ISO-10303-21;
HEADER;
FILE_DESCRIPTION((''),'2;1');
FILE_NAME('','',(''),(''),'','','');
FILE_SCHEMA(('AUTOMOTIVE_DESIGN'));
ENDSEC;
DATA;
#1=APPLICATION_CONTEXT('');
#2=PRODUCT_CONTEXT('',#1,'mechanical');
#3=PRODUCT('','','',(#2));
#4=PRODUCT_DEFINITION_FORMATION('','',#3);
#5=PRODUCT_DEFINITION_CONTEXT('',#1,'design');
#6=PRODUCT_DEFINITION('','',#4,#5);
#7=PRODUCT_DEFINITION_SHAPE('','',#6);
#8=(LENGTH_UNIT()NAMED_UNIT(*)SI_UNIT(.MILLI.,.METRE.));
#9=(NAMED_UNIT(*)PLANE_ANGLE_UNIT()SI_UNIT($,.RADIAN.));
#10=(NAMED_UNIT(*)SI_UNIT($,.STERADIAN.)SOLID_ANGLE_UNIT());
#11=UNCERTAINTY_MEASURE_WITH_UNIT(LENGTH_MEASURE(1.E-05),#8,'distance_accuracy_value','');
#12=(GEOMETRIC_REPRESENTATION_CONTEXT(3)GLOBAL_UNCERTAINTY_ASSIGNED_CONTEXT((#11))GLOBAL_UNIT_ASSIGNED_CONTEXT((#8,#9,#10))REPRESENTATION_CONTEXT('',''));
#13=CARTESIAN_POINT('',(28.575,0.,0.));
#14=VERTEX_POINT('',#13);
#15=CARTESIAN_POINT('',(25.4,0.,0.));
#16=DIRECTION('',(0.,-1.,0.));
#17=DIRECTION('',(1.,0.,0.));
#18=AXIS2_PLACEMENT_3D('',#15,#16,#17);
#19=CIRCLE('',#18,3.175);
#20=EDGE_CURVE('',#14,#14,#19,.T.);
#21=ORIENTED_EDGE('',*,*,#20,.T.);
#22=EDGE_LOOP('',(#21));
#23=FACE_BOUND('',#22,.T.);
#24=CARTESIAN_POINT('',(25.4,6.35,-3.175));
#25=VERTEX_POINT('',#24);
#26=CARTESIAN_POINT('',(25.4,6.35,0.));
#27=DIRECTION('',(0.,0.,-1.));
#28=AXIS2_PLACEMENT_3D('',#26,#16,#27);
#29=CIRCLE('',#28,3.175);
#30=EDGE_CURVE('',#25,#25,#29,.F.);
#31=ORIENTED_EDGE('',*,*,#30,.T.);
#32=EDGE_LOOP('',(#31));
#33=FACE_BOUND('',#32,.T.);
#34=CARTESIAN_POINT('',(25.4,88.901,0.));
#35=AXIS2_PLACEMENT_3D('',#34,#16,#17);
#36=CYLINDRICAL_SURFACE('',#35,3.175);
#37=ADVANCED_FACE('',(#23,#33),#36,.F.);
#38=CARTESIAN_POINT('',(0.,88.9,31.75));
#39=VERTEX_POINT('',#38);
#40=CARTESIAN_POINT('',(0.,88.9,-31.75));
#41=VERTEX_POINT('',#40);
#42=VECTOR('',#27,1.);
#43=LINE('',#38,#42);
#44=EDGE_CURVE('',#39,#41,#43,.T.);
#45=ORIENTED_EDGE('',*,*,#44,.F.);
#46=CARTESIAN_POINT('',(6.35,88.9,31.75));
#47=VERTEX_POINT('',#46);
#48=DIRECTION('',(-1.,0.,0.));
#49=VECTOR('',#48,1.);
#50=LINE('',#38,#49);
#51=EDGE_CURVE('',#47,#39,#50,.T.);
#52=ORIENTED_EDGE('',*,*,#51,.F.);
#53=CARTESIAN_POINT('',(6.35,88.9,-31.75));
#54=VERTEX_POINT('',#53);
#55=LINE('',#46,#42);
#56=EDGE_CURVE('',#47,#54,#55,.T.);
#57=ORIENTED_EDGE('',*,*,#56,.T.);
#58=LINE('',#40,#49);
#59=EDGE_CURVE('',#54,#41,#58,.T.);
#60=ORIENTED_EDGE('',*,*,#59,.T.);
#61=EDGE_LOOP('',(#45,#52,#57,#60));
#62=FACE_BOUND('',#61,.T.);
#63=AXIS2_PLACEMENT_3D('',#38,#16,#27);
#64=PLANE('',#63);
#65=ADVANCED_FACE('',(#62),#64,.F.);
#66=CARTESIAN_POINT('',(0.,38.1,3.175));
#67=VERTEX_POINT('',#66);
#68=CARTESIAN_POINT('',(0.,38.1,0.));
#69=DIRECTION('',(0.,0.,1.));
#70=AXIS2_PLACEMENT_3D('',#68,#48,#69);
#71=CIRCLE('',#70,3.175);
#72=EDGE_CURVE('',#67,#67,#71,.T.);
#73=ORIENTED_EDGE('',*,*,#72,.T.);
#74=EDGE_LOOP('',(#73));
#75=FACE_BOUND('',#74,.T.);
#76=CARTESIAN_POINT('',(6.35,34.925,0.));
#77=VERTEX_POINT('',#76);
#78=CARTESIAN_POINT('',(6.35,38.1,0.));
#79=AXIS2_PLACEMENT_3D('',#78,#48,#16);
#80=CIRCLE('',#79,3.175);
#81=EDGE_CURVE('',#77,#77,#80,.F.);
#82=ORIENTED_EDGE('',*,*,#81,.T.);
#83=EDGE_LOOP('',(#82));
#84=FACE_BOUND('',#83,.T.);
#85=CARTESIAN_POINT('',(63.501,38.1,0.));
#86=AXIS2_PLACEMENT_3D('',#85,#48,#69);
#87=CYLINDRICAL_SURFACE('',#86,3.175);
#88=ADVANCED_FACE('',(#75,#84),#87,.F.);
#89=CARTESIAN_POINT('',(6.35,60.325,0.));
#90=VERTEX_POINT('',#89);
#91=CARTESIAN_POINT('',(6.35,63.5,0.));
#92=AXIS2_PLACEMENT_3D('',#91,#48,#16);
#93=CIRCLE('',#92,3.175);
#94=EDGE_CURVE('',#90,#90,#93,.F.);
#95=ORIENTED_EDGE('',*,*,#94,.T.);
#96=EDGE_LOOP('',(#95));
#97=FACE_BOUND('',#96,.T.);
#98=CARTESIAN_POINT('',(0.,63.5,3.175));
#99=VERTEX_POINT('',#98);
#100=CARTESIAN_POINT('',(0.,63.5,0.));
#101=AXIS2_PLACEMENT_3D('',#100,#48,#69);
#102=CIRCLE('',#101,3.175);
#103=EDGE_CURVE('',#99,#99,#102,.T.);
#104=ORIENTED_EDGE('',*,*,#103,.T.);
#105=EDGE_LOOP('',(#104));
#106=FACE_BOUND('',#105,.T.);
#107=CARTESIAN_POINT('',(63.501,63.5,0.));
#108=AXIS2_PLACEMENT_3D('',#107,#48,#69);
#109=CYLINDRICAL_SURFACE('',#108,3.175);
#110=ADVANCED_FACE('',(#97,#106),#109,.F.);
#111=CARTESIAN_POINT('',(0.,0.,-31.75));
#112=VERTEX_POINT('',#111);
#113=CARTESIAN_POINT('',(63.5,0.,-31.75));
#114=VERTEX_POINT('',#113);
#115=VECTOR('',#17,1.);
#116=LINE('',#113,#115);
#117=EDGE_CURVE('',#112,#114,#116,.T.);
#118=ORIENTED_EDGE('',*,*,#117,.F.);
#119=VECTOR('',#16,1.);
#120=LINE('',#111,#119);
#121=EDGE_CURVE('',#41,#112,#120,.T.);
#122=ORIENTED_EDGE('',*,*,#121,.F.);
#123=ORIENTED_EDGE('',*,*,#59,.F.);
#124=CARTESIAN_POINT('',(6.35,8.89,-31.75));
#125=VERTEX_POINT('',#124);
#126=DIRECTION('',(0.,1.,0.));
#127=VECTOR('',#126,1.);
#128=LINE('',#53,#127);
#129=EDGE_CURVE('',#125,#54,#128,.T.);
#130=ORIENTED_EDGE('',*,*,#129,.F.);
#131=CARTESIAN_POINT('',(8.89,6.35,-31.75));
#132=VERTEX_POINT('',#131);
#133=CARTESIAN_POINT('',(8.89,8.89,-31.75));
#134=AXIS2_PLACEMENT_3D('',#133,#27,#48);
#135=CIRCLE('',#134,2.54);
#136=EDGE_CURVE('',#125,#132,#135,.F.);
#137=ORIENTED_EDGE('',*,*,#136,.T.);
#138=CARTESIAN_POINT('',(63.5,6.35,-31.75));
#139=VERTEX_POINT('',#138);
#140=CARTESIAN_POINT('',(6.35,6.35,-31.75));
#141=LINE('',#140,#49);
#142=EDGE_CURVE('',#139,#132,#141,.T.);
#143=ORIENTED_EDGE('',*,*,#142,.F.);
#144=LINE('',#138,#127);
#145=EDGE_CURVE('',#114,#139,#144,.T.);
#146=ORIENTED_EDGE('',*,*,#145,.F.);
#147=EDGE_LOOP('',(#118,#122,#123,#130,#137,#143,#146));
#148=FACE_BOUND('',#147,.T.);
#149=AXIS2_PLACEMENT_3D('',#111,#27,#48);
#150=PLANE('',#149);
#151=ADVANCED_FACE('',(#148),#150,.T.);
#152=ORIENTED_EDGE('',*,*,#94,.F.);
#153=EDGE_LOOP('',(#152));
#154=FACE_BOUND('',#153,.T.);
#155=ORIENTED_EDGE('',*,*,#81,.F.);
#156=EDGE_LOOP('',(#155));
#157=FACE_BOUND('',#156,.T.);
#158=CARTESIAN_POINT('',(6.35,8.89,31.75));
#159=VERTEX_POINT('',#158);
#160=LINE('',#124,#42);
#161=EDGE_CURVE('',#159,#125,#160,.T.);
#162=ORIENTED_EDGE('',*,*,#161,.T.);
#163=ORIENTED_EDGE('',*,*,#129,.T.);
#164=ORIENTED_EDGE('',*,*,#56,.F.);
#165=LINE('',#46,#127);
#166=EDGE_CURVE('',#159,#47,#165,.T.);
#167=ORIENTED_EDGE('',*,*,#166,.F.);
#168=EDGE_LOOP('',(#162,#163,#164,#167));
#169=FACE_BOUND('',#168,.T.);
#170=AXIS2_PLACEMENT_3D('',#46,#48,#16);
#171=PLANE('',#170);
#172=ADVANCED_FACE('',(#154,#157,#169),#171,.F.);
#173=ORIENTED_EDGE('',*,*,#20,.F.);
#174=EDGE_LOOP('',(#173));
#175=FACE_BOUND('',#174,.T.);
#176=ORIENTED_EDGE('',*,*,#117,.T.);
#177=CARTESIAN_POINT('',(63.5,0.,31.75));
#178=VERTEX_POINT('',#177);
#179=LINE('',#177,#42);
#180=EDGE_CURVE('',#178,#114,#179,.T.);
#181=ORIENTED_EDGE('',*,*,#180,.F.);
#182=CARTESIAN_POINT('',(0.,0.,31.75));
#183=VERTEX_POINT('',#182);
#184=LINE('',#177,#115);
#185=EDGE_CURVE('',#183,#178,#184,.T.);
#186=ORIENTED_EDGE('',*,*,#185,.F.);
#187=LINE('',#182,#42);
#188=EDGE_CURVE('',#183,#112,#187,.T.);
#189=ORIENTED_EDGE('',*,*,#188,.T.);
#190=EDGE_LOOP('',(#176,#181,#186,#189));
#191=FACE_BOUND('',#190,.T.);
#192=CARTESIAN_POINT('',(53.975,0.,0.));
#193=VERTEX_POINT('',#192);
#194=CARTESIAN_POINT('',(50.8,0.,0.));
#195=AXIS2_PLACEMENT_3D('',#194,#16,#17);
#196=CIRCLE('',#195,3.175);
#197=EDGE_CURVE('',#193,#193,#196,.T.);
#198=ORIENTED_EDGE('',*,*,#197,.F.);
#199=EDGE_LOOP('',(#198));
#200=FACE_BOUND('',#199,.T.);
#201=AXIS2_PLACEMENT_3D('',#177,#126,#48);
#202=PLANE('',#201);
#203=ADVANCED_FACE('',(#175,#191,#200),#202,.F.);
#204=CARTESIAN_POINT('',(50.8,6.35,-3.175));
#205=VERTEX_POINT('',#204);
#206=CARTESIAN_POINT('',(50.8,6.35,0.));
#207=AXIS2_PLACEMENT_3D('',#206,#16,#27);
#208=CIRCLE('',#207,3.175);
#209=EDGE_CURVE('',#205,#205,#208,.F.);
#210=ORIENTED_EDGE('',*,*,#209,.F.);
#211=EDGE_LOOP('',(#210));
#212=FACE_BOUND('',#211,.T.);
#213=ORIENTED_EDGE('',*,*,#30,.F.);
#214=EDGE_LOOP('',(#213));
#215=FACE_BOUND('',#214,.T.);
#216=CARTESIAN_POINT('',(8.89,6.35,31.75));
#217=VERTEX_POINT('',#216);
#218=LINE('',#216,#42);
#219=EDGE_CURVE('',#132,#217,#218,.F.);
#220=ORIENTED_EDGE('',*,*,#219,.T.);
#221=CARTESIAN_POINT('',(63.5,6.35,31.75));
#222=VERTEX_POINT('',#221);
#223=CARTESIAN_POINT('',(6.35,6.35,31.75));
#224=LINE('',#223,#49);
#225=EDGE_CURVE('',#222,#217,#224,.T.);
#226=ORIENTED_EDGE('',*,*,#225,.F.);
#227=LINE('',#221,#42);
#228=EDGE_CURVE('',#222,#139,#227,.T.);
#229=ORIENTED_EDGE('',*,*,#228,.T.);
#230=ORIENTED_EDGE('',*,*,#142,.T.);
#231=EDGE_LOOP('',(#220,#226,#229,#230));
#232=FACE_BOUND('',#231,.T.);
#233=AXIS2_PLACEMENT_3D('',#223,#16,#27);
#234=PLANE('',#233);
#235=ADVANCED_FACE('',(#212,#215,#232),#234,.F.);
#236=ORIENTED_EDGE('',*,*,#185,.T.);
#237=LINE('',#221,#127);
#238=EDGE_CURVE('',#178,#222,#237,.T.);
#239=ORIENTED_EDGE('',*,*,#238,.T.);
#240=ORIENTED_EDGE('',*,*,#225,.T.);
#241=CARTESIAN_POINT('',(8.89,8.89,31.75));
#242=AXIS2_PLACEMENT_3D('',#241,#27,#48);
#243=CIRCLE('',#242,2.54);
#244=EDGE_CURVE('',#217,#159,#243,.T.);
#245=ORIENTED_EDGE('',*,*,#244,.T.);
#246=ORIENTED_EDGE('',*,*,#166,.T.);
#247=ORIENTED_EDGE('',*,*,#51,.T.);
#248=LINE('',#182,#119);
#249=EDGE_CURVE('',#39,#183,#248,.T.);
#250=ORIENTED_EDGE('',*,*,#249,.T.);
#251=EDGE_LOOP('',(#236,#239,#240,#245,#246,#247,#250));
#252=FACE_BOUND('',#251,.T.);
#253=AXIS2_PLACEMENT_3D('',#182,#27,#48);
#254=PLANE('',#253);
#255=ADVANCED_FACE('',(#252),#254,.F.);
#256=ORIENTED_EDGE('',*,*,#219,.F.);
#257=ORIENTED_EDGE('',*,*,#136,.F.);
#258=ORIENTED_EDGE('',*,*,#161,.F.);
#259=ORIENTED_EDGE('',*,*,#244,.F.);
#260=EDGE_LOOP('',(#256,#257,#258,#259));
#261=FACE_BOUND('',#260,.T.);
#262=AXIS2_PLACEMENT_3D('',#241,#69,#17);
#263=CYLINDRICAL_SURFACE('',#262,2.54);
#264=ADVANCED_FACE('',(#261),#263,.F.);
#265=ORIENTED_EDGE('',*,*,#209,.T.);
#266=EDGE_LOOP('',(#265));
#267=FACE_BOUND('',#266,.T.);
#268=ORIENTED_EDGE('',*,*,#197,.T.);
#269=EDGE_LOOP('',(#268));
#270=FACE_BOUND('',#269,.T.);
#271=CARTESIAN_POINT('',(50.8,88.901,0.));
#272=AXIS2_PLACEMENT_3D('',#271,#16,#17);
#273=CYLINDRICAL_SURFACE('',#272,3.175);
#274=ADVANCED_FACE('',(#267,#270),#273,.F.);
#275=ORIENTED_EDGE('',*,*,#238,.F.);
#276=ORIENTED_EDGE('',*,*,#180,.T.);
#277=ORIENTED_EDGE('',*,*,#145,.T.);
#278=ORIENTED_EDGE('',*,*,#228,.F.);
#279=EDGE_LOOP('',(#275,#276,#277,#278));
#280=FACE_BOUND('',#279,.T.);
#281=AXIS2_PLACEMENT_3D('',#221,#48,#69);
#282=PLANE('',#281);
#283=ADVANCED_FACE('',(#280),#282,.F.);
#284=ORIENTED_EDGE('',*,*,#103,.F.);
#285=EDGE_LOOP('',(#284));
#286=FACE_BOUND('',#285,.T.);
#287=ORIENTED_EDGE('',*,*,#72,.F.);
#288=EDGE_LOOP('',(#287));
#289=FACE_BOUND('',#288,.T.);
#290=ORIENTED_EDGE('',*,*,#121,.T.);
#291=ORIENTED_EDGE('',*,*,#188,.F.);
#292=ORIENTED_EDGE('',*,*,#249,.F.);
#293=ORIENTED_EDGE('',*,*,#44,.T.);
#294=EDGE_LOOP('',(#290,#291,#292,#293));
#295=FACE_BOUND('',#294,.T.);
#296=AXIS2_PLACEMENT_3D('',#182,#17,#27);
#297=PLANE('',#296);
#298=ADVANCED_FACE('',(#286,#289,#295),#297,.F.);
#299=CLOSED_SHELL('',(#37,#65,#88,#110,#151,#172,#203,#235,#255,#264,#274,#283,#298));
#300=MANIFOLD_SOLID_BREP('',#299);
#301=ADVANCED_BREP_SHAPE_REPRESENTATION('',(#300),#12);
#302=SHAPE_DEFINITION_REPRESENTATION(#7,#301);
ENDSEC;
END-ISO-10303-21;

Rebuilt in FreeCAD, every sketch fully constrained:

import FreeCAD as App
import Part
import Sketcher

V = App.Vector
Q = App.Units.Quantity


def edges_at(feature, points):
    """Names of the edges that pass closest to the given points."""
    edges = feature.Shape.Edges
    near = lambda p: min(range(len(edges)), key=lambda i: edges[i].distToShape(Part.Vertex(*p))[0])
    return sorted({f"Edge{near(p) + 1}" for p in points})

doc = App.newDocument("Part")
params = doc.addObject("Spreadsheet::Sheet", "Params")
for row, (alias, value) in enumerate([
    ("sketch1_width", "2.5 in"),
    ("sketch1_height", "3.5 in"),
    ("sketch1_width2", "2.25 in"),
    ("pad1_length", "2.5 in"),
    ("sketch2_diameter", "0.25 in"),
    ("sketch3_diameter", "0.25 in"),
    ("sketch4_diameter", "0.25 in"),
    ("sketch5_diameter", "0.25 in"),
    ("fillet_radius", "0.1 in"),
], start=1):
    params.set(f"A{row}", alias)
    params.set(f"B{row}", "=" + value)
    params.setAlias(f"B{row}", alias)

body = doc.addObject("PartDesign::Body", "Body")

# Sketch on XY plane
sketch1 = body.newObject("Sketcher::SketchObject", "Sketch")
sketch1.AttachmentSupport = (doc.getObject("XY_Plane"), [""])
sketch1.MapMode = "FlatFace"
sketch1.addGeometry(Part.LineSegment(V(0, 89, 0), V(0, 0, 0)), False)
sketch1.addGeometry(Part.LineSegment(V(0, 0, 0), V(64, 0, 0)), False)
sketch1.addGeometry(Part.LineSegment(V(64, 0, 0), V(64, 6, 0)), False)
sketch1.addGeometry(Part.LineSegment(V(64, 6, 0), V(6, 6, 0)), False)
sketch1.addGeometry(Part.LineSegment(V(6, 6, 0), V(6, 89, 0)), False)
sketch1.addGeometry(Part.LineSegment(V(6, 89, 0), V(0, 89, 0)), False)
sketch1.addConstraint(Sketcher.Constraint("Coincident", 0, 2, 1, 1))
sketch1.addConstraint(Sketcher.Constraint("Coincident", 1, 2, 2, 1))
sketch1.addConstraint(Sketcher.Constraint("Coincident", 2, 2, 3, 1))
sketch1.addConstraint(Sketcher.Constraint("Coincident", 3, 2, 4, 1))
sketch1.addConstraint(Sketcher.Constraint("Coincident", 4, 2, 5, 1))
sketch1.addConstraint(Sketcher.Constraint("Coincident", 5, 2, 0, 1))
sketch1.addConstraint(Sketcher.Constraint("Vertical", 0))
sketch1.addConstraint(Sketcher.Constraint("Horizontal", 1))
sketch1.addConstraint(Sketcher.Constraint("Vertical", 2))
sketch1.addConstraint(Sketcher.Constraint("Horizontal", 3))
sketch1.addConstraint(Sketcher.Constraint("Vertical", 4))
sketch1.addConstraint(Sketcher.Constraint("Horizontal", 5))
sketch1.addConstraint(Sketcher.Constraint("Coincident", 0, 2, -1, 1))
sketch1.addConstraint(Sketcher.Constraint("Equal", 5, 2))
sketch1.addConstraint(Sketcher.Constraint("DistanceX", 1, 1, 1, 2, Q("2.5 in")))
sketch1.addConstraint(Sketcher.Constraint("DistanceY", 0, 2, 0, 1, Q("3.5 in")))
sketch1.addConstraint(Sketcher.Constraint("DistanceX", 3, 2, 3, 1, Q("2.25 in")))
sketch1.setExpression("Constraints[14]", "Params.sketch1_width")
sketch1.setExpression("Constraints[15]", "Params.sketch1_height")
sketch1.setExpression("Constraints[16]", "Params.sketch1_width2")
pad1 = body.newObject("PartDesign::Pad", "Pad")
pad1.Profile = sketch1
pad1.setExpression("Length", "Params.pad1_length")
pad1.Midplane = True

# Sketch on YZ plane
sketch2 = body.newObject("Sketcher::SketchObject", "Sketch001")
sketch2.AttachmentSupport = (doc.getObject("YZ_Plane"), [""])
sketch2.MapMode = "FlatFace"
sketch2.addGeometry(Part.Circle(V(63.5, 0, 0), V(0, 0, 1), 3.2), False)
sketch2.addConstraint(Sketcher.Constraint("PointOnObject", 0, 3, -1))
sketch2.addConstraint(Sketcher.Constraint("Diameter", 0, Q("0.25 in")))
sketch2.addConstraint(Sketcher.Constraint("DistanceX", -1, 1, 0, 3, Q("2.5 in")))
sketch2.setExpression("Constraints[1]", "Params.sketch2_diameter")
pocket1 = body.newObject("PartDesign::Pocket", "Pocket")
pocket1.Profile = sketch2
pocket1.Type = "UpToFirst"
pocket1.Reversed = True

# Sketch on YZ plane
sketch3 = body.newObject("Sketcher::SketchObject", "Sketch002")
sketch3.AttachmentSupport = (doc.getObject("YZ_Plane"), [""])
sketch3.MapMode = "FlatFace"
sketch3.addGeometry(Part.Circle(V(38.1, 0, 0), V(0, 0, 1), 3.2), False)
sketch3.addConstraint(Sketcher.Constraint("PointOnObject", 0, 3, -1))
sketch3.addConstraint(Sketcher.Constraint("Diameter", 0, Q("0.25 in")))
sketch3.addConstraint(Sketcher.Constraint("DistanceX", -1, 1, 0, 3, Q("1.5 in")))
sketch3.setExpression("Constraints[1]", "Params.sketch3_diameter")
pocket2 = body.newObject("PartDesign::Pocket", "Pocket001")
pocket2.Profile = sketch3
pocket2.Type = "UpToFirst"
pocket2.Reversed = True

# Sketch on XZ plane
sketch4 = body.newObject("Sketcher::SketchObject", "Sketch003")
sketch4.AttachmentSupport = (doc.getObject("XZ_Plane"), [""])
sketch4.MapMode = "FlatFace"
sketch4.addGeometry(Part.Circle(V(25.4, 0, 0), V(0, 0, 1), 3.2), False)
sketch4.addConstraint(Sketcher.Constraint("PointOnObject", 0, 3, -1))
sketch4.addConstraint(Sketcher.Constraint("Diameter", 0, Q("0.25 in")))
sketch4.addConstraint(Sketcher.Constraint("DistanceX", -1, 1, 0, 3, Q("1 in")))
sketch4.setExpression("Constraints[1]", "Params.sketch4_diameter")
pocket3 = body.newObject("PartDesign::Pocket", "Pocket002")
pocket3.Profile = sketch4
pocket3.Type = "UpToFirst"

# Sketch on XZ plane
sketch5 = body.newObject("Sketcher::SketchObject", "Sketch004")
sketch5.AttachmentSupport = (doc.getObject("XZ_Plane"), [""])
sketch5.MapMode = "FlatFace"
sketch5.addGeometry(Part.Circle(V(50.8, 0, 0), V(0, 0, 1), 3.2), False)
sketch5.addConstraint(Sketcher.Constraint("PointOnObject", 0, 3, -1))
sketch5.addConstraint(Sketcher.Constraint("Diameter", 0, Q("0.25 in")))
sketch5.addConstraint(Sketcher.Constraint("DistanceX", -1, 1, 0, 3, Q("2 in")))
sketch5.setExpression("Constraints[1]", "Params.sketch5_diameter")
pocket4 = body.newObject("PartDesign::Pocket", "Pocket003")
pocket4.Profile = sketch5
pocket4.Type = "UpToFirst"
doc.recompute()

fillet = body.newObject("PartDesign::Fillet", "Fillet")
fillet.Base = (pocket4, edges_at(pocket4, [(6.35, 6.35, 0)]))
fillet.setExpression("Radius", "Params.fillet_radius")

doc.recompute()
